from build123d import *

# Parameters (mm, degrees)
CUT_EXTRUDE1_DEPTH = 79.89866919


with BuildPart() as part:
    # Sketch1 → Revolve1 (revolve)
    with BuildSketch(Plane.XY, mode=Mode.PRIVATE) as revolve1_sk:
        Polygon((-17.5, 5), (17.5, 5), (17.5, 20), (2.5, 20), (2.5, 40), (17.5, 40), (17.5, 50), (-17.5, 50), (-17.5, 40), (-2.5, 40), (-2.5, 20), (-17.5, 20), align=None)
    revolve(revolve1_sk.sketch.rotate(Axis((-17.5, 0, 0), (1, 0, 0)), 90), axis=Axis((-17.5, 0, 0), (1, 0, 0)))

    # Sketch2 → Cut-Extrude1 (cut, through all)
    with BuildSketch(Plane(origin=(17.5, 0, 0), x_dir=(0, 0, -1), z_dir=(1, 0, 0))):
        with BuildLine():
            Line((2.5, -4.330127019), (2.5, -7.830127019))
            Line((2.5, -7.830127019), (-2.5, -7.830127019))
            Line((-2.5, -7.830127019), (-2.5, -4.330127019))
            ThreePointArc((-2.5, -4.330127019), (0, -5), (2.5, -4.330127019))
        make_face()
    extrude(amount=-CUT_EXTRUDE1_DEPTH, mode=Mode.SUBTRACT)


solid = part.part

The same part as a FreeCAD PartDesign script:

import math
import FreeCAD as App
import Part
import Sketcher

V = App.Vector


def add_polygon(sketch, points):
    """Adds a closed chain of lines whose ends are joined by coincident constraints."""
    first, n = sketch.GeometryCount, len(points)
    for a, b in zip(points, points[1:] + points[:1]):
        sketch.addGeometry(Part.LineSegment(App.Vector(*a, 0), App.Vector(*b, 0)), False)
    for i in range(n):
        sketch.addConstraint(Sketcher.Constraint("Coincident", first + i, 2, first + (i + 1) % n, 1))

doc = App.newDocument("Part")
params = doc.addObject("Spreadsheet::Sheet", "Params")
for row, (alias, value) in enumerate([
    ("sketch1_width", "35 mm"),
    ("sketch1_width2", "15 mm"),
    ("sketch1_height", "20 mm"),
    ("sketch1_height2", "10 mm"),
    ("revolution_angle", "360 deg"),
    ("sketch2_radius", "5 mm"),
    ("sketch2_height", "5 mm"),
    ("sketch2_width", "3.5 mm"),
], start=1):
    params.set(f"A{row}", alias)
    params.set(f"B{row}", "=" + value)
    params.setAlias(f"B{row}", alias)

body = doc.addObject("PartDesign::Body", "Body")

# Sketch on XY plane
sketch1 = body.newObject("Sketcher::SketchObject", "Sketch")
sketch1.AttachmentSupport = (doc.getObject("XY_Plane"), [""])
sketch1.MapMode = "FlatFace"
add_polygon(sketch1, [(-18, 5), (18, 5), (18, 20), (2, 20), (2, 40), (18, 40), (18, 50), (-18, 50), (-18, 40), (-2, 40), (-2, 20), (-18, 20)])  # lines 0-11
sketch1.addConstraint([
    Sketcher.Constraint("Horizontal", 0),
    Sketcher.Constraint("Vertical", 1),
    Sketcher.Constraint("Horizontal", 2),
    Sketcher.Constraint("Vertical", 3),
    Sketcher.Constraint("Horizontal", 4),
    Sketcher.Constraint("Vertical", 5),
    Sketcher.Constraint("Horizontal", 6),
    Sketcher.Constraint("Vertical", 7),
    Sketcher.Constraint("Horizontal", 8),
    Sketcher.Constraint("Vertical", 9),
    Sketcher.Constraint("Horizontal", 10),
    Sketcher.Constraint("Vertical", 11),
    Sketcher.Constraint("Symmetric", 4, 2, 7, 2, -2),
    Sketcher.Constraint("Symmetric", 2, 2, 9, 2, -2),
    Sketcher.Constraint("Vertical", 1, 2, 4, 2),
    Sketcher.Constraint("Vertical", 7, 2, 10, 2),
    Sketcher.Constraint("Equal", 10, 1),
    Sketcher.Constraint("DistanceX", 0, 1, 0, 2, 35.0),
    Sketcher.Constraint("DistanceX", 2, 2, 2, 1, 15.0),
    Sketcher.Constraint("DistanceY", 3, 1, 3, 2, 20.0),
    Sketcher.Constraint("DistanceY", 5, 1, 5, 2, 10.0),
    Sketcher.Constraint("DistanceY", -1, 1, 0, 2, 5.0),
])
sketch1.setExpression("Constraints[29]", "Params.sketch1_width")
sketch1.setExpression("Constraints[30]", "Params.sketch1_width2")
sketch1.setExpression("Constraints[31]", "Params.sketch1_height")
sketch1.setExpression("Constraints[32]", "Params.sketch1_height2")
revolution = body.newObject("PartDesign::Revolution", "Revolution")
revolution.Profile = sketch1
revolution.ReferenceAxis = (sketch1, ["H_Axis"])
revolution.setExpression("Angle", "Params.revolution_angle")

# Sketch on YZ plane
sketch2 = body.newObject("Sketcher::SketchObject", "Sketch001")
sketch2.AttachmentSupport = (doc.getObject("YZ_Plane"), [""])
sketch2.MapMode = "FlatFace"
sketch2.AttachmentOffset = App.Placement(V(0, 0, 17.5), App.Rotation())
sketch2.addGeometry([
    Part.LineSegment(V(-7.8, -2.5, 0), V(-4.3, -2.5, 0)),
    Part.ArcOfCircle(Part.Circle(V(0, 0, 0), V(0, 0, 1), 5), math.radians(150), math.radians(210)),
    Part.LineSegment(V(-4.3, 2.5, 0), V(-7.8, 2.5, 0)),
    Part.LineSegment(V(-7.8, 2.5, 0), V(-7.8, -2.5, 0)),
], False)
sketch2.addConstraint([
    Sketcher.Constraint("Coincident", 0, 2, 1, 2),
    Sketcher.Constraint("Coincident", 1, 1, 2, 1),
    Sketcher.Constraint("Coincident", 2, 2, 3, 1),
    Sketcher.Constraint("Coincident", 3, 2, 0, 1),
    Sketcher.Constraint("Horizontal", 0),
    Sketcher.Constraint("Horizontal", 2),
    Sketcher.Constraint("Vertical", 3),
    Sketcher.Constraint("Coincident", 1, 3, -1, 1),
    Sketcher.Constraint("Vertical", 0, 2, 1, 1),
    Sketcher.Constraint("Radius", 1, 5.0),
    Sketcher.Constraint("DistanceY", 3, 2, 3, 1, 5.0),
    Sketcher.Constraint("DistanceX", 0, 1, 0, 2, 3.5),
])
sketch2.setExpression("Constraints[9]", "Params.sketch2_radius")
sketch2.setExpression("Constraints[10]", "Params.sketch2_height")
sketch2.setExpression("Constraints[11]", "Params.sketch2_width")
pocket1 = body.newObject("PartDesign::Pocket", "Pocket")
pocket1.Profile = sketch2
pocket1.Type = "ThroughAll"

doc.recompute()
